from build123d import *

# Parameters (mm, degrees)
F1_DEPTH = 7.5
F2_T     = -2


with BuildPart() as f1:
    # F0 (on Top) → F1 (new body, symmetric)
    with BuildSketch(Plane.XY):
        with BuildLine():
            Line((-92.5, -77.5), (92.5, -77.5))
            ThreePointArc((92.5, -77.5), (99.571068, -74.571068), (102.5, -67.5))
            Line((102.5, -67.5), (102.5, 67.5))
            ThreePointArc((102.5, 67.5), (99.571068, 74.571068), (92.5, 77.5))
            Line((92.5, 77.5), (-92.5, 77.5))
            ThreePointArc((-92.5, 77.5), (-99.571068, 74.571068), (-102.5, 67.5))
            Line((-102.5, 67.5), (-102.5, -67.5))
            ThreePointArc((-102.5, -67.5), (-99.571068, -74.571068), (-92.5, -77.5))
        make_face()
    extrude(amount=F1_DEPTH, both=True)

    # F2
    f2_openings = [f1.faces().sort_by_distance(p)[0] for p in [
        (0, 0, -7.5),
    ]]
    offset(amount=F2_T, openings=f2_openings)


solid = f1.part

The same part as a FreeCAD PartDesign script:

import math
import FreeCAD as App
import Part
import Sketcher
Q = App.Units.Quantity


def faces_at(feature, points):
    """Names of the faces that lie closest to the given points."""
    faces = feature.Shape.Faces
    near = lambda p: min(range(len(faces)), key=lambda i: faces[i].distToShape(Part.Vertex(*p))[0])
    return sorted({f"Face{near(p) + 1}" for p in points})

doc = App.newDocument("Part")
body = doc.addObject("PartDesign::Body", "Body")

# Sketch on XY plane
sketch1 = doc.addObject("Sketcher::SketchObject", "Sketch")
body.addObject(sketch1)
sketch1.AttachmentSupport = (doc.XY_Plane, [""])
sketch1.MapMode = "FlatFace"
sketch1.addGeometry([
    Part.LineSegment(App.Vector(-92, -78, 0), App.Vector(92, -78, 0)),  # 0
    Part.ArcOfCircle(Part.Circle(App.Vector(93, -68, 0), App.Vector(0, 0, 1), 10), math.radians(-90), math.radians(0)),  # 1
    Part.LineSegment(App.Vector(102, -68, 0), App.Vector(102, 68, 0)),  # 2
    Part.ArcOfCircle(Part.Circle(App.Vector(93, 68, 0), App.Vector(0, 0, 1), 10), math.radians(0), math.radians(90)),  # 3
    Part.LineSegment(App.Vector(92, 78, 0), App.Vector(-92, 78, 0)),  # 4
    Part.ArcOfCircle(Part.Circle(App.Vector(-93, 68, 0), App.Vector(0, 0, 1), 10), math.radians(90), math.radians(180)),  # 5
    Part.LineSegment(App.Vector(-102, 68, 0), App.Vector(-102, -68, 0)),  # 6
    Part.ArcOfCircle(Part.Circle(App.Vector(-93, -68, 0), App.Vector(0, 0, 1), 10), math.radians(180), math.radians(270)),  # 7
], False)
sketch1.addConstraint([
    Sketcher.Constraint("Tangent", 0, 2, 1, 1),
    Sketcher.Constraint("Tangent", 1, 2, 2, 1),
    Sketcher.Constraint("Tangent", 2, 2, 3, 1),
    Sketcher.Constraint("Tangent", 3, 2, 4, 1),
    Sketcher.Constraint("Tangent", 4, 2, 5, 1),
    Sketcher.Constraint("Tangent", 5, 2, 6, 1),
    Sketcher.Constraint("Tangent", 6, 2, 7, 1),
    Sketcher.Constraint("Tangent", 7, 2, 0, 1),
    Sketcher.Constraint("Horizontal", 0),
    Sketcher.Constraint("Vertical", 2),
    Sketcher.Constraint("Horizontal", 4),
    Sketcher.Constraint("Vertical", 6),
    Sketcher.Constraint("Equal", 1, 3),
    Sketcher.Constraint("Equal", 3, 5),
    Sketcher.Constraint("Equal", 5, 7),
    Sketcher.Constraint("Symmetric", 1, 3, 5, 3, -1, 1),
    Sketcher.Constraint("Radius", 1, Q("9.999999 mm")),
    Sketcher.Constraint("DistanceX", 0, 1, 0, 2, Q("185 mm")),
    Sketcher.Constraint("DistanceY", 2, 1, 2, 2, Q("135 mm")),
])
pad1 = doc.addObject("PartDesign::Pad", "Pad")
body.addObject(pad1)
pad1.Profile = sketch1
pad1.Length = 15
pad1.Midplane = True
doc.recompute()

thickness = doc.addObject("PartDesign::Thickness", "Thickness")
body.addObject(thickness)
thickness.Base = (pad1, faces_at(pad1, [(0, 0, -7.5)]))
thickness.Value = 2
thickness.Reversed = True
thickness.Join = "Arc"

doc.recompute()
